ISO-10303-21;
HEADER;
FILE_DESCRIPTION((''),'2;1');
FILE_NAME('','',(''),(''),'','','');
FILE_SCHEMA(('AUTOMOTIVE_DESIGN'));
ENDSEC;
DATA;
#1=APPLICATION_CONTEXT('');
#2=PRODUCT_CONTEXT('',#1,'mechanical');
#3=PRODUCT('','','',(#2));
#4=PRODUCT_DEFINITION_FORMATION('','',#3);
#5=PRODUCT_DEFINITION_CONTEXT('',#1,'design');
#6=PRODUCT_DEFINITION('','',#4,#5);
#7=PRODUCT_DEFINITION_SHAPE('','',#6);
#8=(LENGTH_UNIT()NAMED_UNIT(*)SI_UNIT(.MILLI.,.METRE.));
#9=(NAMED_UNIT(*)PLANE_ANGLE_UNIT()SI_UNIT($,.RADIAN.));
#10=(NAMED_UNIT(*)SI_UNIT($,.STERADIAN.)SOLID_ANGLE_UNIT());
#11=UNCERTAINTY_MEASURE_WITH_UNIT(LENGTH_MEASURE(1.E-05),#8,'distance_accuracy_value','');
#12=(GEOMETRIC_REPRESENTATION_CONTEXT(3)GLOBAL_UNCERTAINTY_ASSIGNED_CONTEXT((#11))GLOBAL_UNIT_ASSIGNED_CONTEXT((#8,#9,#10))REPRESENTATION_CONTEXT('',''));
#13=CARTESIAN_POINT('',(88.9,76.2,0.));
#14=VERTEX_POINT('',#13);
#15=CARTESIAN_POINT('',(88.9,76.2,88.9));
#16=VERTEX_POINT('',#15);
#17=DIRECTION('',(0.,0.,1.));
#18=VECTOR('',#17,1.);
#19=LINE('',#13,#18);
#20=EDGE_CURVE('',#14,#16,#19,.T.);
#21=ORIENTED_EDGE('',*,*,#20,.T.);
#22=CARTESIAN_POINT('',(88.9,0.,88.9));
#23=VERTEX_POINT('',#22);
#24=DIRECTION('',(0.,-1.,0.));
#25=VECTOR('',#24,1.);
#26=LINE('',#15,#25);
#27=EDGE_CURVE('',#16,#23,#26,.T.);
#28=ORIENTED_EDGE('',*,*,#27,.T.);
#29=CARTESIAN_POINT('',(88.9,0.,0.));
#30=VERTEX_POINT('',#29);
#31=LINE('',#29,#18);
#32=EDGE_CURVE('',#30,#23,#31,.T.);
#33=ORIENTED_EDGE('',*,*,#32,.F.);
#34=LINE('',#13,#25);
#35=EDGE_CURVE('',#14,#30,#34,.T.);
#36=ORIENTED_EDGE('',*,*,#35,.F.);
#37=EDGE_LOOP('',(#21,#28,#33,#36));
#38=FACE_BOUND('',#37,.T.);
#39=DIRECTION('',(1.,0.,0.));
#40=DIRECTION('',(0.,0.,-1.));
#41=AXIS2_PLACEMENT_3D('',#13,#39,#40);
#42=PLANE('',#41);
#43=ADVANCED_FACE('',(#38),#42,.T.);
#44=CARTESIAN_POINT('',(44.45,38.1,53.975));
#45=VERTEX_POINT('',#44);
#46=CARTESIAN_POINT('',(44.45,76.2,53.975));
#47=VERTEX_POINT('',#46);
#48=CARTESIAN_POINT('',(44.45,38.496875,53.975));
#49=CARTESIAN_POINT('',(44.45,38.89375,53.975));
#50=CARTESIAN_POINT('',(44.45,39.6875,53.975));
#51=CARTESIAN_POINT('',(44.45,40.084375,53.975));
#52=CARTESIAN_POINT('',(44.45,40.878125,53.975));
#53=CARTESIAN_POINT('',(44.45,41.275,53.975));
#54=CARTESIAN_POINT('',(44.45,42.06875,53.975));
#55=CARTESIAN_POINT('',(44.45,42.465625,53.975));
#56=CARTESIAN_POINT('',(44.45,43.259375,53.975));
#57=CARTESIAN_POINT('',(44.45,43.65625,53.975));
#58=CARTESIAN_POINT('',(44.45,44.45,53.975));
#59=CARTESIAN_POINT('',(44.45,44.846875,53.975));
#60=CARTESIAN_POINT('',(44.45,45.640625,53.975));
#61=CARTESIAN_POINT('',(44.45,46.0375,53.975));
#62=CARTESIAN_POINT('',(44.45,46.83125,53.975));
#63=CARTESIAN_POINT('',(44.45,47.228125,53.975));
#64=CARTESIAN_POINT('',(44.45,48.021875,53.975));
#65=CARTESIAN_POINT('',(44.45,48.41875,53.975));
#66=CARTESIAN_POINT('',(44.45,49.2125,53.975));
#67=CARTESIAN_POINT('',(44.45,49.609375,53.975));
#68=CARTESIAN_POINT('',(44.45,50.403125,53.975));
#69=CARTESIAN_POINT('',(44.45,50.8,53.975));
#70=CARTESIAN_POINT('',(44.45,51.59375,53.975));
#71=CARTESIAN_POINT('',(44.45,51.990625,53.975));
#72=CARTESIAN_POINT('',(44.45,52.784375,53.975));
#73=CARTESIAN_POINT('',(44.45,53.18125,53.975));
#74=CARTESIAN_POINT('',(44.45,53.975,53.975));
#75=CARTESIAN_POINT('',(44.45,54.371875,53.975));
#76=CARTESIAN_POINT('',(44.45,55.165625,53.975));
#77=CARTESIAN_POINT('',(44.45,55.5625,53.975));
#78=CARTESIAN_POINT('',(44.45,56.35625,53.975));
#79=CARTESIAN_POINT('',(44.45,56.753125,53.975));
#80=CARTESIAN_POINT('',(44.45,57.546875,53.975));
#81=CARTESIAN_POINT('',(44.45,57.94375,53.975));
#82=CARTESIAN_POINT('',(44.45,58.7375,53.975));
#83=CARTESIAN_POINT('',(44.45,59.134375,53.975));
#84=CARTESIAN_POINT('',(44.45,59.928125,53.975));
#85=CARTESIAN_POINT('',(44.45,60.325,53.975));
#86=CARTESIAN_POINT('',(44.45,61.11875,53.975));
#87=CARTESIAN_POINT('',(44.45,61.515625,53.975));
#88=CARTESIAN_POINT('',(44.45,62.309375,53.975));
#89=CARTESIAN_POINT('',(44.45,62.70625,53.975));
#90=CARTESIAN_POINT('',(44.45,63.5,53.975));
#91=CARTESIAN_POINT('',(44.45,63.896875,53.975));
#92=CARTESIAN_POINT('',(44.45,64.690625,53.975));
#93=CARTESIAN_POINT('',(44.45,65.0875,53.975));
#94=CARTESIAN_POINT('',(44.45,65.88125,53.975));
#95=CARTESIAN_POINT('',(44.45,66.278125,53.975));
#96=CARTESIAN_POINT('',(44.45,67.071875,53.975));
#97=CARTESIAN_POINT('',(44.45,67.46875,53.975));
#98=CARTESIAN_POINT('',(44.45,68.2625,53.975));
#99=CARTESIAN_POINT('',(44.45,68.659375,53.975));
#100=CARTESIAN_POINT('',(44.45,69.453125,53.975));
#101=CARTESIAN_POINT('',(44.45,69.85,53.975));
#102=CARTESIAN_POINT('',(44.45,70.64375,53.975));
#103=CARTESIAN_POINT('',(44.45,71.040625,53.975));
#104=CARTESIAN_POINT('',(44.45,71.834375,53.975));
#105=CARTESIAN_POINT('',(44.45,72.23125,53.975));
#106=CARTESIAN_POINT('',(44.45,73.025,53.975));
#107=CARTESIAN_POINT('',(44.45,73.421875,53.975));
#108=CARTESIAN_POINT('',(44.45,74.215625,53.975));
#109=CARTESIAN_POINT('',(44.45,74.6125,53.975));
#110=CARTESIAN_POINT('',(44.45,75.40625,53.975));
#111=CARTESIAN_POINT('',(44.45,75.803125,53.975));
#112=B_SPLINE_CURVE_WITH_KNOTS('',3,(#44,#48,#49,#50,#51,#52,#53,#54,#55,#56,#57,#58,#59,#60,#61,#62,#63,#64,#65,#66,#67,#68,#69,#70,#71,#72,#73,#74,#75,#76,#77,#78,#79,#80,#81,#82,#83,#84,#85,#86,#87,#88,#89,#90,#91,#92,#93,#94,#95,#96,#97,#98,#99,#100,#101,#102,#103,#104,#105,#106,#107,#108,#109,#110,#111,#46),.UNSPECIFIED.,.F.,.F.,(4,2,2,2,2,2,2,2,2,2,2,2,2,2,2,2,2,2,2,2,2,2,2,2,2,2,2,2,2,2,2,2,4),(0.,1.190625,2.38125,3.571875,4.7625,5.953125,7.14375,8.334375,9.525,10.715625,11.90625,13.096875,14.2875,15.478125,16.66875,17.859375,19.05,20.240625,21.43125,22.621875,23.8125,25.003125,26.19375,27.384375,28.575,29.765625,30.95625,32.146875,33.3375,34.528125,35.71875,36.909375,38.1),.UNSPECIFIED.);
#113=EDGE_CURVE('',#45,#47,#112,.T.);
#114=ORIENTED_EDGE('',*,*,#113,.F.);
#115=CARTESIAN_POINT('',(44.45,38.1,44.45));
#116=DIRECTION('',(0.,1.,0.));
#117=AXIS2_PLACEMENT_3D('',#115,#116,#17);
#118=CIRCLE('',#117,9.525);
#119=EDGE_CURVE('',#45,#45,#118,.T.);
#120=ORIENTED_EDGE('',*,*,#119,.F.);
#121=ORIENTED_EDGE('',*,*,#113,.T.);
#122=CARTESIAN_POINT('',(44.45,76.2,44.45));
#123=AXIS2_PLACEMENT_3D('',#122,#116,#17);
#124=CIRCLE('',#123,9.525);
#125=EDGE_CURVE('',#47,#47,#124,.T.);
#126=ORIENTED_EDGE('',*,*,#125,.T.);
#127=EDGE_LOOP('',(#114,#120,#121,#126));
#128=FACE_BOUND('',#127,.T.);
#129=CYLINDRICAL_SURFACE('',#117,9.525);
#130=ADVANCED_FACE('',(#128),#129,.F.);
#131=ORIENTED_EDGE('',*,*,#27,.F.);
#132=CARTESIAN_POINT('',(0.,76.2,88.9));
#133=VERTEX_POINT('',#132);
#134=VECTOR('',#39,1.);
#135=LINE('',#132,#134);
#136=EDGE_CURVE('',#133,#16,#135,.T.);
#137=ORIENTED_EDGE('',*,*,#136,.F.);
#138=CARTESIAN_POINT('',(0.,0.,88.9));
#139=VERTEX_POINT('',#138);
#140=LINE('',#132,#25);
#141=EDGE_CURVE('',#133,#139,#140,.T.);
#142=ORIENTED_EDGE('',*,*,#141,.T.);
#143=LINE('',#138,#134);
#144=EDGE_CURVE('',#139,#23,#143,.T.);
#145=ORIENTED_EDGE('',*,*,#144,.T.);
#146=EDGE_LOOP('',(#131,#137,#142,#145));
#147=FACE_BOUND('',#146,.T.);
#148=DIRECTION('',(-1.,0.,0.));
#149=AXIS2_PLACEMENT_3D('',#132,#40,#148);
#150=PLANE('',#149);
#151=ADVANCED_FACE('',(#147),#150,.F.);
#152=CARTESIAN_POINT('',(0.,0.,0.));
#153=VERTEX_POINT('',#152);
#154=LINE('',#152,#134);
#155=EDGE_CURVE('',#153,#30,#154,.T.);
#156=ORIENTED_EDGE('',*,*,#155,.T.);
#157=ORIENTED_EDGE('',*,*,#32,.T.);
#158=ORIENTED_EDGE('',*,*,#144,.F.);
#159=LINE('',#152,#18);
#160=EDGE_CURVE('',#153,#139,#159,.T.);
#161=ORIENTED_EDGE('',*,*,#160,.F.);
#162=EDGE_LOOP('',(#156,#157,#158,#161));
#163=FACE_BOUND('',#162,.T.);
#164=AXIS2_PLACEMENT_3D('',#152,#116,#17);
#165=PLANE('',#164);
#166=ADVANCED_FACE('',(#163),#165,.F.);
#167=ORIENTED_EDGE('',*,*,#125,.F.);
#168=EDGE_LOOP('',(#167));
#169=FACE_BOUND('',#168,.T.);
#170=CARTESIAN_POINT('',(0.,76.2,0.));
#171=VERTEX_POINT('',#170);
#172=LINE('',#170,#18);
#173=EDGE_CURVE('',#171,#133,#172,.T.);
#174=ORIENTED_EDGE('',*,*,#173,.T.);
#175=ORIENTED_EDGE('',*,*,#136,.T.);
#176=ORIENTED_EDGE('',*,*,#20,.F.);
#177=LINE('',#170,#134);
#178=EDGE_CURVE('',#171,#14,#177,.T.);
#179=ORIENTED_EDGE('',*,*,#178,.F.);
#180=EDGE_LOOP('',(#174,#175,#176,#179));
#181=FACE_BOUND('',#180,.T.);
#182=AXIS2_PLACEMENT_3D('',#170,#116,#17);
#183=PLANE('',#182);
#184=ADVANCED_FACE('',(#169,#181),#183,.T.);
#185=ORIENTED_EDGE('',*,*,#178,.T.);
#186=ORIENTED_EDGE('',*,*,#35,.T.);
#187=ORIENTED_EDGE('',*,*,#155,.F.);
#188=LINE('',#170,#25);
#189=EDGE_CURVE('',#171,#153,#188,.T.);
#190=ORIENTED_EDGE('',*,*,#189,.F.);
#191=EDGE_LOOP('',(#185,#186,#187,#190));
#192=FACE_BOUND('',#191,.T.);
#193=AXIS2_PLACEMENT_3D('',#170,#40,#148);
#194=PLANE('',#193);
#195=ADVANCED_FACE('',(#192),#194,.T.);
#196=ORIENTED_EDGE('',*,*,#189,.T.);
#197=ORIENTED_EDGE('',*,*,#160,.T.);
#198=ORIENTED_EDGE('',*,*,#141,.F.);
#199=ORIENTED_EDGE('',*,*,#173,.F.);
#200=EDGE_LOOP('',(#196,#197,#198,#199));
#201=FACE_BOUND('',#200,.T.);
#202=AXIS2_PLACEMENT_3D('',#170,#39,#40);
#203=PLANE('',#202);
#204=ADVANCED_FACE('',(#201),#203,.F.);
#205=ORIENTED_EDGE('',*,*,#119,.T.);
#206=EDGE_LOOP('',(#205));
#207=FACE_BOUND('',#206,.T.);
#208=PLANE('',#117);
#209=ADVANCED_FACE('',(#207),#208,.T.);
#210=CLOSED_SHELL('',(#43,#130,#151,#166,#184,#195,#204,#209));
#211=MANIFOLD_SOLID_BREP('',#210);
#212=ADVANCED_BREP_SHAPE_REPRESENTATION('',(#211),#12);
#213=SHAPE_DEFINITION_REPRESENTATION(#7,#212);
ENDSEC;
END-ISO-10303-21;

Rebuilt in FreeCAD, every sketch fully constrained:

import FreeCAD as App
import Part
import Sketcher
from FreeCAD import Vector
Q = App.Units.Quantity


def add_polygon(sketch, points):
    """Adds a closed chain of lines whose ends are joined by coincident constraints."""
    first, n = sketch.GeometryCount, len(points)
    for a, b in zip(points, points[1:] + points[:1]):
        sketch.addGeometry(Part.LineSegment(App.Vector(*a, 0), App.Vector(*b, 0)), False)
    for i in range(n):
        sketch.addConstraint(Sketcher.Constraint("Coincident", first + i, 2, first + (i + 1) % n, 1))

doc = App.newDocument("Part")
body = doc.addObject("PartDesign::Body", "Body")

sketch1 = body.newObject("Sketcher::SketchObject", "Sketch")
sketch1.AttachmentSupport = (doc.getObject("XZ_Plane"), [""])
sketch1.MapMode = "FlatFace"
add_polygon(sketch1, [(0, 0), (0, 89), (89, 89), (89, 0)])
sketch1.addConstraint([
    Sketcher.Constraint("Vertical", 0),
    Sketcher.Constraint("Horizontal", 1),
    Sketcher.Constraint("Vertical", 2),
    Sketcher.Constraint("Horizontal", 3),
    Sketcher.Constraint("Coincident", 3, 2, -1, 1),
    Sketcher.Constraint("Equal", 3, 0),
    Sketcher.Constraint("DistanceX", 1, 1, 1, 2, Q("3.5 in")),
])
pad1 = body.newObject("PartDesign::Pad", "Pad")
pad1.Profile = sketch1
pad1.Length = Q("3 in")
pad1.Reversed = True

sketch2 = body.newObject("Sketcher::SketchObject", "Sketch001")
sketch2.AttachmentSupport = (doc.getObject("XZ_Plane"), [""])
sketch2.MapMode = "FlatFace"
sketch2.AttachmentOffset = App.Placement(Vector(0, 0, -3 * 25.4), App.Rotation())
sketch2.addGeometry(Part.Circle(Vector(44, 44, 0), Vector(0, 0, 1), 10), False)
sketch2.addConstraint([
    Sketcher.Constraint("Diameter", 0, Q("0.75 in")),
    Sketcher.Constraint("DistanceX", -1, 1, 0, 3, Q("1.75 in")),
    Sketcher.Constraint("DistanceY", -1, 1, 0, 3, Q("1.75 in")),
])
pocket1 = body.newObject("PartDesign::Pocket", "Pocket")
pocket1.Profile = sketch2
pocket1.Length = Q("1.5 in")
pocket1.Reversed = True

doc.recompute()
